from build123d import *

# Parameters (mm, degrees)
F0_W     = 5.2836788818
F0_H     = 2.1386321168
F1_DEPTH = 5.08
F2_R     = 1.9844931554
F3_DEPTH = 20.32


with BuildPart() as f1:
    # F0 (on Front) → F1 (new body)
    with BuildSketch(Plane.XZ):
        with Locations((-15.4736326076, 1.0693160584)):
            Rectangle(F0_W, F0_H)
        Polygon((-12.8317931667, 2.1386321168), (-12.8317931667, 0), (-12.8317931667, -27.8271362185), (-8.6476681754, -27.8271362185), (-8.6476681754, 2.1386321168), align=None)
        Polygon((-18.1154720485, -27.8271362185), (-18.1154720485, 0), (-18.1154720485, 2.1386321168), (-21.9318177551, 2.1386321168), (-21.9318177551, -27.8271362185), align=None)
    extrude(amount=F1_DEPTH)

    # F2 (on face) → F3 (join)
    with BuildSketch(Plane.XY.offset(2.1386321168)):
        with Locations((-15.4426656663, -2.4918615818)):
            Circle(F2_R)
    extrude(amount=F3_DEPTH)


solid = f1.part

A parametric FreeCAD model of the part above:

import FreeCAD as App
import Part
import Sketcher

V = App.Vector
Q = App.Units.Quantity

doc = App.newDocument("Part")
body = doc.addObject("PartDesign::Body", "Body")

sketch1 = body.newObject("Sketcher::SketchObject", "Sketch")
sketch1.AttachmentSupport = (doc.getObject("XZ_Plane"), [""])
sketch1.MapMode = "FlatFace"
sketch1.addGeometry(Part.LineSegment(V(-18.1, 0, 0), V(-12.8, 0, 0)), False)
sketch1.addGeometry(Part.LineSegment(V(-12.8, 0, 0), V(-12.8, -27.8, 0)), False)
sketch1.addGeometry(Part.LineSegment(V(-12.8, -27.8, 0), V(-8.6, -27.8, 0)), False)
sketch1.addGeometry(Part.LineSegment(V(-8.6, -27.8, 0), V(-8.6, 2.1, 0)), False)
sketch1.addGeometry(Part.LineSegment(V(-8.6, 2.1, 0), V(-21.9, 2.1, 0)), False)
sketch1.addGeometry(Part.LineSegment(V(-21.9, 2.1, 0), V(-21.9, -27.8, 0)), False)
sketch1.addGeometry(Part.LineSegment(V(-21.9, -27.8, 0), V(-18.1, -27.8, 0)), False)
sketch1.addGeometry(Part.LineSegment(V(-18.1, -27.8, 0), V(-18.1, 0, 0)), False)
sketch1.addConstraint(Sketcher.Constraint("Coincident", 0, 2, 1, 1))
sketch1.addConstraint(Sketcher.Constraint("Coincident", 1, 2, 2, 1))
sketch1.addConstraint(Sketcher.Constraint("Coincident", 2, 2, 3, 1))
sketch1.addConstraint(Sketcher.Constraint("Coincident", 3, 2, 4, 1))
sketch1.addConstraint(Sketcher.Constraint("Coincident", 4, 2, 5, 1))
sketch1.addConstraint(Sketcher.Constraint("Coincident", 5, 2, 6, 1))
sketch1.addConstraint(Sketcher.Constraint("Coincident", 6, 2, 7, 1))
sketch1.addConstraint(Sketcher.Constraint("Coincident", 7, 2, 0, 1))
sketch1.addConstraint(Sketcher.Constraint("Horizontal", 0))
sketch1.addConstraint(Sketcher.Constraint("Vertical", 1))
sketch1.addConstraint(Sketcher.Constraint("Horizontal", 2))
sketch1.addConstraint(Sketcher.Constraint("Vertical", 3))
sketch1.addConstraint(Sketcher.Constraint("Horizontal", 4))
sketch1.addConstraint(Sketcher.Constraint("Vertical", 5))
sketch1.addConstraint(Sketcher.Constraint("Horizontal", 6))
sketch1.addConstraint(Sketcher.Constraint("Vertical", 7))
sketch1.addConstraint(Sketcher.Constraint("PointOnObject", 0, 2, -1))
sketch1.addConstraint(Sketcher.Constraint("Horizontal", 2, 2, 5, 2))
sketch1.addConstraint(Sketcher.Constraint("DistanceX", 0, 1, 0, 2, Q("5.283679 mm")))
sketch1.addConstraint(Sketcher.Constraint("DistanceX", 4, 2, 4, 1, Q("13.28415 mm")))
sketch1.addConstraint(Sketcher.Constraint("DistanceY", 3, 1, 3, 2, Q("29.965768 mm")))
sketch1.addConstraint(Sketcher.Constraint("DistanceX", 2, 1, 2, 2, Q("4.184125 mm")))
sketch1.addConstraint(Sketcher.Constraint("DistanceY", 1, 2, 1, 1, Q("27.827136 mm")))
sketch1.addConstraint(Sketcher.Constraint("DistanceX", 2, 2, -1, 1, Q("8.647668 mm")))
pad1 = body.newObject("PartDesign::Pad", "Pad")
pad1.Profile = sketch1
pad1.Length = Q("0.2 in")

sketch2 = body.newObject("Sketcher::SketchObject", "Sketch001")
sketch2.AttachmentSupport = (doc.getObject("XY_Plane"), [""])
sketch2.MapMode = "FlatFace"
sketch2.AttachmentOffset = App.Placement(V(0, 0, 2.138632), App.Rotation())
sketch2.addGeometry(Part.Circle(V(-15.4, -2.5, 0), V(0, 0, 1), 2), False)
sketch2.addConstraint(Sketcher.Constraint("Diameter", 0, Q("3.968986 mm")))
sketch2.addConstraint(Sketcher.Constraint("DistanceY", 0, 3, -1, 1, Q("2.491862 mm")))
sketch2.addConstraint(Sketcher.Constraint("DistanceX", 0, 3, -1, 1, Q("15.442666 mm")))
pad2 = body.newObject("PartDesign::Pad", "Pad001")
pad2.Profile = sketch2
pad2.Length = Q("0.8 in")

doc.recompute()
